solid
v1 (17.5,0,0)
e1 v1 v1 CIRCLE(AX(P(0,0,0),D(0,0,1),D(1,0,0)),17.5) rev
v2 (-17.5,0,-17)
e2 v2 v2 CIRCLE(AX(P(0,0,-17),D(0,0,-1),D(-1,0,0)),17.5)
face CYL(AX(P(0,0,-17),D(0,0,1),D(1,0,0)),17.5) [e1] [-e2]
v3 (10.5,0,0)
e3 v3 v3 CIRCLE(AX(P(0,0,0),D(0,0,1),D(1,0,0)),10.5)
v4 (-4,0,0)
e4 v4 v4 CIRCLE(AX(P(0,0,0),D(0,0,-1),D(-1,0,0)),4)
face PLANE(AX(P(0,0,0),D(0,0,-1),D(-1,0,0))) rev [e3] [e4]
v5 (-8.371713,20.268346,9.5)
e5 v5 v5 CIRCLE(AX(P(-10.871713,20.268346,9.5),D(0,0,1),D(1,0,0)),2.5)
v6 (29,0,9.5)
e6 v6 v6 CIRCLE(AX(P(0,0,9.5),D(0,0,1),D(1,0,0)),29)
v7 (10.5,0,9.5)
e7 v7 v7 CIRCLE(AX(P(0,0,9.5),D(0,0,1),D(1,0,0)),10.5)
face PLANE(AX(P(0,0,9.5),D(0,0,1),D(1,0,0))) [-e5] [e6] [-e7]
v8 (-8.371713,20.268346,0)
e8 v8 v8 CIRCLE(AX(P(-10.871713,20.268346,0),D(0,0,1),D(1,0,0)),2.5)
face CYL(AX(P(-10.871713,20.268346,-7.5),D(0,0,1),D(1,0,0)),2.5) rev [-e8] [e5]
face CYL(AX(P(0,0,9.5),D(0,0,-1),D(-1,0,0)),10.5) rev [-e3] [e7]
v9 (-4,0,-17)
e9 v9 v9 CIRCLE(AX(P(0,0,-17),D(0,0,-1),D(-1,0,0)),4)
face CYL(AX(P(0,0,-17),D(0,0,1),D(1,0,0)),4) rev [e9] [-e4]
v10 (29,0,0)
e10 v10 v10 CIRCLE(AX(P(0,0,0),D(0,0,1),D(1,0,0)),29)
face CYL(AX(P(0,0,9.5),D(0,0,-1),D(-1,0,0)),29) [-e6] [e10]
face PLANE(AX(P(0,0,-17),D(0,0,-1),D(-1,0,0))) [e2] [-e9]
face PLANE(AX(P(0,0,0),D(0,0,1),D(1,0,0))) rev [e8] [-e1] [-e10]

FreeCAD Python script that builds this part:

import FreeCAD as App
import Part
import Sketcher
from FreeCAD import Vector
Q = App.Units.Quantity

doc = App.newDocument("Part")
body = doc.addObject("PartDesign::Body", "Body")

# Sketch on XY plane
sketch1 = doc.addObject("Sketcher::SketchObject", "Sketch")
body.addObject(sketch1)
sketch1.AttachmentSupport = (doc.XY_Plane, [""])
sketch1.MapMode = "FlatFace"
sketch1.addGeometry([
    Part.Circle(Vector(0, 0, 0), Vector(0, 0, 1), 29),
    Part.Circle(Vector(0, 0, 0), Vector(0, 0, 1), 10),
], False)
sketch1.addConstraint([
    Sketcher.Constraint("Coincident", 0, 3, -1, 1),
    Sketcher.Constraint("Coincident", 1, 3, -1, 1),
    Sketcher.Constraint("Diameter", 0, Q("58 mm")),
    Sketcher.Constraint("Diameter", 1, Q("21 mm")),
])
pad1 = doc.addObject("PartDesign::Pad", "Pad")
body.addObject(pad1)
pad1.Profile = sketch1
pad1.Length = 9.5

# Sketch on XY plane
sketch2 = doc.addObject("Sketcher::SketchObject", "Sketch001")
body.addObject(sketch2)
sketch2.AttachmentSupport = (doc.XY_Plane, [""])
sketch2.MapMode = "FlatFace"
sketch2.addGeometry([
    Part.Circle(Vector(0, 0, 0), Vector(0, 0, 1), 17.5),
    Part.Circle(Vector(0, 0, 0), Vector(0, 0, 1), 4),
], False)
sketch2.addConstraint([
    Sketcher.Constraint("Coincident", 0, 3, -1, 1),
    Sketcher.Constraint("Coincident", 1, 3, -1, 1),
    Sketcher.Constraint("Diameter", 0, Q("35 mm")),
    Sketcher.Constraint("Diameter", 1, Q("8 mm")),
])
pad2 = doc.addObject("PartDesign::Pad", "Pad001")
body.addObject(pad2)
pad2.Profile = sketch2
pad2.Length = 17
pad2.Reversed = True

# Sketch on XY plane
sketch3 = doc.addObject("Sketcher::SketchObject", "Sketch002")
body.addObject(sketch3)
sketch3.AttachmentSupport = (doc.XY_Plane, [""])
sketch3.MapMode = "FlatFace"
sketch3.AttachmentOffset = App.Placement(Vector(0, 0, 9.5), App.Rotation())
sketch3.addGeometry(Part.Circle(Vector(-10.9, 20.3, 0), Vector(0, 0, 1), 2.5), False)
sketch3.addConstraint([
    Sketcher.Constraint("Diameter", 0, Q("5 mm")),
    Sketcher.Constraint("DistanceX", 0, 3, -1, 1, Q("10.871713 mm")),
    Sketcher.Constraint("DistanceY", -1, 1, 0, 3, Q("20.268346 mm")),
])
pocket1 = doc.addObject("PartDesign::Pocket", "Pocket")
body.addObject(pocket1)
pocket1.Profile = sketch3
pocket1.Length = 17

doc.recompute()
